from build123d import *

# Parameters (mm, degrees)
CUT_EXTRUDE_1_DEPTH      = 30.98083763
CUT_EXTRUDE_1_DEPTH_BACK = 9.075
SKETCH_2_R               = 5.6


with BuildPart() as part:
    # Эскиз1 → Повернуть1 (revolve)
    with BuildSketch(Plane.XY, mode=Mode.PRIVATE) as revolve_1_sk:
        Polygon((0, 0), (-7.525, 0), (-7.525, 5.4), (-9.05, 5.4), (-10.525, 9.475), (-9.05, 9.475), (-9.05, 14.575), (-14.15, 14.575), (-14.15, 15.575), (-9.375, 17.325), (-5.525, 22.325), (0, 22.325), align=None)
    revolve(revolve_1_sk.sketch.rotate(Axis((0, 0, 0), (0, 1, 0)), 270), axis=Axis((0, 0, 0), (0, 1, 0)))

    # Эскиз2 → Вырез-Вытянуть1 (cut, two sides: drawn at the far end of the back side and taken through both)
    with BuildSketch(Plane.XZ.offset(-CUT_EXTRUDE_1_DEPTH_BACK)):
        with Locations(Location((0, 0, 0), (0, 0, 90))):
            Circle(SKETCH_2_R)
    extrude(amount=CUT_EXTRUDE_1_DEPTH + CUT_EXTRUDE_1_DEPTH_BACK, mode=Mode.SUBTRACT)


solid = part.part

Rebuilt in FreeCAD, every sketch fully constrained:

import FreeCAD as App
import Part
import Sketcher
from FreeCAD import Vector

doc = App.newDocument("Part")
body = doc.addObject("PartDesign::Body", "Body")

# Sketch on XY plane
sketch1 = body.newObject("Sketcher::SketchObject", "Sketch")
sketch1.AttachmentSupport = (doc.getObject("XY_Plane"), [""])
sketch1.MapMode = "FlatFace"
sketch1.addGeometry(Part.LineSegment(Vector(-7.525, 0, 0), Vector(0, 0, 0)), False)
sketch1.addGeometry(Part.LineSegment(Vector(0, 0, 0), Vector(0, 22.325, 0)), False)
sketch1.addGeometry(Part.LineSegment(Vector(0, 22.325, 0), Vector(-5.525, 22.325, 0)), False)
sketch1.addGeometry(Part.LineSegment(Vector(-5.525, 22.325, 0), Vector(-9.375, 17.325, 0)), False)
sketch1.addGeometry(Part.LineSegment(Vector(-9.375, 17.325, 0), Vector(-14.15, 15.575, 0)), False)
sketch1.addGeometry(Part.LineSegment(Vector(-14.15, 15.575, 0), Vector(-14.15, 14.575, 0)), False)
sketch1.addGeometry(Part.LineSegment(Vector(-14.15, 14.575, 0), Vector(-9.05, 14.575, 0)), False)
sketch1.addGeometry(Part.LineSegment(Vector(-9.05, 14.575, 0), Vector(-9.05, 9.475, 0)), False)
sketch1.addGeometry(Part.LineSegment(Vector(-9.05, 9.475, 0), Vector(-10.525, 9.475, 0)), False)
sketch1.addGeometry(Part.LineSegment(Vector(-10.525, 9.475, 0), Vector(-9.05, 5.4, 0)), False)
sketch1.addGeometry(Part.LineSegment(Vector(-9.05, 5.4, 0), Vector(-7.525, 5.4, 0)), False)
sketch1.addGeometry(Part.LineSegment(Vector(-7.525, 5.4, 0), Vector(-7.525, 0, 0)), False)
sketch1.addConstraint(Sketcher.Constraint("Coincident", 0, 2, 1, 1))
sketch1.addConstraint(Sketcher.Constraint("Coincident", 1, 2, 2, 1))
sketch1.addConstraint(Sketcher.Constraint("Coincident", 2, 2, 3, 1))
sketch1.addConstraint(Sketcher.Constraint("Coincident", 3, 2, 4, 1))
sketch1.addConstraint(Sketcher.Constraint("Coincident", 4, 2, 5, 1))
sketch1.addConstraint(Sketcher.Constraint("Coincident", 5, 2, 6, 1))
sketch1.addConstraint(Sketcher.Constraint("Coincident", 6, 2, 7, 1))
sketch1.addConstraint(Sketcher.Constraint("Coincident", 7, 2, 8, 1))
sketch1.addConstraint(Sketcher.Constraint("Coincident", 8, 2, 9, 1))
sketch1.addConstraint(Sketcher.Constraint("Coincident", 9, 2, 10, 1))
sketch1.addConstraint(Sketcher.Constraint("Coincident", 10, 2, 11, 1))
sketch1.addConstraint(Sketcher.Constraint("Coincident", 11, 2, 0, 1))
sketch1.addConstraint(Sketcher.Constraint("Horizontal", 0))
sketch1.addConstraint(Sketcher.Constraint("Vertical", 1))
sketch1.addConstraint(Sketcher.Constraint("Horizontal", 2))
sketch1.addConstraint(Sketcher.Constraint("Vertical", 5))
sketch1.addConstraint(Sketcher.Constraint("Horizontal", 6))
sketch1.addConstraint(Sketcher.Constraint("Vertical", 7))
sketch1.addConstraint(Sketcher.Constraint("Horizontal", 8))
sketch1.addConstraint(Sketcher.Constraint("Horizontal", 10))
sketch1.addConstraint(Sketcher.Constraint("Vertical", 11))
sketch1.addConstraint(Sketcher.Constraint("Coincident", 0, 2, -1, 1))
sketch1.addConstraint(Sketcher.Constraint("Vertical", 7, 2, 9, 2))
sketch1.addConstraint(Sketcher.Constraint("Equal", 6, 7))
sketch1.addConstraint(Sketcher.Constraint("DistanceY", 5, 2, 5, 1, 1.0))
sketch1.addConstraint(Sketcher.Constraint("DistanceX", 6, 1, 6, 2, 5.1))
sketch1.addConstraint(Sketcher.Constraint("DistanceY", 11, 2, 11, 1, 5.4))
sketch1.addConstraint(Sketcher.Constraint("DistanceY", 3, 2, 2, 2, 5.0))
sketch1.addConstraint(Sketcher.Constraint("DistanceX", 8, 2, 10, 2, 3.0))
sketch1.addConstraint(Sketcher.Constraint("DistanceX", 0, 1, 0, 2, 7.525))
sketch1.addConstraint(Sketcher.Constraint("DistanceX", 2, 2, 2, 1, 5.525))
sketch1.addConstraint(Sketcher.Constraint("DistanceX", 8, 2, 8, 1, 1.475))
sketch1.addConstraint(Sketcher.Constraint("DistanceY", 1, 1, 1, 2, 22.325))
sketch1.addConstraint(Sketcher.Constraint("DistanceX", 3, 2, 2, 2, 3.85))
sketch1.addConstraint(Sketcher.Constraint("DistanceY", 4, 2, 3, 2, 1.75))
revolution = body.newObject("PartDesign::Revolution", "Revolution")
revolution.Profile = sketch1
revolution.ReferenceAxis = (sketch1, ["V_Axis"])
revolution.Angle = 360

# Sketch on XZ plane
sketch2 = body.newObject("Sketcher::SketchObject", "Sketch001")
sketch2.AttachmentSupport = (doc.getObject("XZ_Plane"), [""])
sketch2.MapMode = "FlatFace"
sketch2.addGeometry(Part.Circle(Vector(0, 0, 0), Vector(0, 0, 1), 5.6), False)
sketch2.addConstraint(Sketcher.Constraint("Coincident", 0, 3, -1, 1))
sketch2.addConstraint(Sketcher.Constraint("Diameter", 0, 11.2))
pocket1 = body.newObject("PartDesign::Pocket", "Pocket")
pocket1.Profile = sketch2
pocket1.Type = "TwoLengths"
pocket1.Length = 30.980838
pocket1.Length2 = 9.075
pocket1.Reversed = True

doc.recompute()
